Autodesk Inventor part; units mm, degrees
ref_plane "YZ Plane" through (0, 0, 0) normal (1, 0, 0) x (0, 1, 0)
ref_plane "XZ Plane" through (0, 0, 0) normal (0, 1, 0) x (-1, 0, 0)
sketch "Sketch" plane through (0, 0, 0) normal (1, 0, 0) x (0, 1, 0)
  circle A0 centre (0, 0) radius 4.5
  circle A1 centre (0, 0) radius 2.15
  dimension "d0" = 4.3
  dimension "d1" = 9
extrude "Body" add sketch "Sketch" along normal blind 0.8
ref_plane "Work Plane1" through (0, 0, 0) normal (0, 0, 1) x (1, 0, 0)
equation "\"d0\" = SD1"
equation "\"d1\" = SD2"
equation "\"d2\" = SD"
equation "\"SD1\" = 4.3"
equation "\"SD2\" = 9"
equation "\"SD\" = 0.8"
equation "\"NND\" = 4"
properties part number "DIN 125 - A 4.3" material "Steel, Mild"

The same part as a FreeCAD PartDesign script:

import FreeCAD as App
import Part
import Sketcher
Q = App.Units.Quantity

doc = App.newDocument("Part")
body = doc.addObject("PartDesign::Body", "Body")

# Sketch on YZ plane
sketch1 = body.newObject("Sketcher::SketchObject", "Sketch")
sketch1.AttachmentSupport = (doc.getObject("YZ_Plane"), [""])
sketch1.MapMode = "FlatFace"
sketch1.addGeometry([
    Part.Circle(App.Vector(0, 0, 0), App.Vector(0, 0, 1), 4.5),
    Part.Circle(App.Vector(0, 0, 0), App.Vector(0, 0, 1), 2.15),
], False)
sketch1.addConstraint([
    Sketcher.Constraint("Coincident", 0, 3, -1, 1),
    Sketcher.Constraint("Coincident", 1, 3, -1, 1),
    Sketcher.Constraint("Diameter", 0, Q("9 mm")),
    Sketcher.Constraint("Diameter", 1, Q("4.3 mm")),
])
pad1 = body.newObject("PartDesign::Pad", "Pad")
pad1.Profile = sketch1
pad1.Length = 0.8

doc.recompute()
